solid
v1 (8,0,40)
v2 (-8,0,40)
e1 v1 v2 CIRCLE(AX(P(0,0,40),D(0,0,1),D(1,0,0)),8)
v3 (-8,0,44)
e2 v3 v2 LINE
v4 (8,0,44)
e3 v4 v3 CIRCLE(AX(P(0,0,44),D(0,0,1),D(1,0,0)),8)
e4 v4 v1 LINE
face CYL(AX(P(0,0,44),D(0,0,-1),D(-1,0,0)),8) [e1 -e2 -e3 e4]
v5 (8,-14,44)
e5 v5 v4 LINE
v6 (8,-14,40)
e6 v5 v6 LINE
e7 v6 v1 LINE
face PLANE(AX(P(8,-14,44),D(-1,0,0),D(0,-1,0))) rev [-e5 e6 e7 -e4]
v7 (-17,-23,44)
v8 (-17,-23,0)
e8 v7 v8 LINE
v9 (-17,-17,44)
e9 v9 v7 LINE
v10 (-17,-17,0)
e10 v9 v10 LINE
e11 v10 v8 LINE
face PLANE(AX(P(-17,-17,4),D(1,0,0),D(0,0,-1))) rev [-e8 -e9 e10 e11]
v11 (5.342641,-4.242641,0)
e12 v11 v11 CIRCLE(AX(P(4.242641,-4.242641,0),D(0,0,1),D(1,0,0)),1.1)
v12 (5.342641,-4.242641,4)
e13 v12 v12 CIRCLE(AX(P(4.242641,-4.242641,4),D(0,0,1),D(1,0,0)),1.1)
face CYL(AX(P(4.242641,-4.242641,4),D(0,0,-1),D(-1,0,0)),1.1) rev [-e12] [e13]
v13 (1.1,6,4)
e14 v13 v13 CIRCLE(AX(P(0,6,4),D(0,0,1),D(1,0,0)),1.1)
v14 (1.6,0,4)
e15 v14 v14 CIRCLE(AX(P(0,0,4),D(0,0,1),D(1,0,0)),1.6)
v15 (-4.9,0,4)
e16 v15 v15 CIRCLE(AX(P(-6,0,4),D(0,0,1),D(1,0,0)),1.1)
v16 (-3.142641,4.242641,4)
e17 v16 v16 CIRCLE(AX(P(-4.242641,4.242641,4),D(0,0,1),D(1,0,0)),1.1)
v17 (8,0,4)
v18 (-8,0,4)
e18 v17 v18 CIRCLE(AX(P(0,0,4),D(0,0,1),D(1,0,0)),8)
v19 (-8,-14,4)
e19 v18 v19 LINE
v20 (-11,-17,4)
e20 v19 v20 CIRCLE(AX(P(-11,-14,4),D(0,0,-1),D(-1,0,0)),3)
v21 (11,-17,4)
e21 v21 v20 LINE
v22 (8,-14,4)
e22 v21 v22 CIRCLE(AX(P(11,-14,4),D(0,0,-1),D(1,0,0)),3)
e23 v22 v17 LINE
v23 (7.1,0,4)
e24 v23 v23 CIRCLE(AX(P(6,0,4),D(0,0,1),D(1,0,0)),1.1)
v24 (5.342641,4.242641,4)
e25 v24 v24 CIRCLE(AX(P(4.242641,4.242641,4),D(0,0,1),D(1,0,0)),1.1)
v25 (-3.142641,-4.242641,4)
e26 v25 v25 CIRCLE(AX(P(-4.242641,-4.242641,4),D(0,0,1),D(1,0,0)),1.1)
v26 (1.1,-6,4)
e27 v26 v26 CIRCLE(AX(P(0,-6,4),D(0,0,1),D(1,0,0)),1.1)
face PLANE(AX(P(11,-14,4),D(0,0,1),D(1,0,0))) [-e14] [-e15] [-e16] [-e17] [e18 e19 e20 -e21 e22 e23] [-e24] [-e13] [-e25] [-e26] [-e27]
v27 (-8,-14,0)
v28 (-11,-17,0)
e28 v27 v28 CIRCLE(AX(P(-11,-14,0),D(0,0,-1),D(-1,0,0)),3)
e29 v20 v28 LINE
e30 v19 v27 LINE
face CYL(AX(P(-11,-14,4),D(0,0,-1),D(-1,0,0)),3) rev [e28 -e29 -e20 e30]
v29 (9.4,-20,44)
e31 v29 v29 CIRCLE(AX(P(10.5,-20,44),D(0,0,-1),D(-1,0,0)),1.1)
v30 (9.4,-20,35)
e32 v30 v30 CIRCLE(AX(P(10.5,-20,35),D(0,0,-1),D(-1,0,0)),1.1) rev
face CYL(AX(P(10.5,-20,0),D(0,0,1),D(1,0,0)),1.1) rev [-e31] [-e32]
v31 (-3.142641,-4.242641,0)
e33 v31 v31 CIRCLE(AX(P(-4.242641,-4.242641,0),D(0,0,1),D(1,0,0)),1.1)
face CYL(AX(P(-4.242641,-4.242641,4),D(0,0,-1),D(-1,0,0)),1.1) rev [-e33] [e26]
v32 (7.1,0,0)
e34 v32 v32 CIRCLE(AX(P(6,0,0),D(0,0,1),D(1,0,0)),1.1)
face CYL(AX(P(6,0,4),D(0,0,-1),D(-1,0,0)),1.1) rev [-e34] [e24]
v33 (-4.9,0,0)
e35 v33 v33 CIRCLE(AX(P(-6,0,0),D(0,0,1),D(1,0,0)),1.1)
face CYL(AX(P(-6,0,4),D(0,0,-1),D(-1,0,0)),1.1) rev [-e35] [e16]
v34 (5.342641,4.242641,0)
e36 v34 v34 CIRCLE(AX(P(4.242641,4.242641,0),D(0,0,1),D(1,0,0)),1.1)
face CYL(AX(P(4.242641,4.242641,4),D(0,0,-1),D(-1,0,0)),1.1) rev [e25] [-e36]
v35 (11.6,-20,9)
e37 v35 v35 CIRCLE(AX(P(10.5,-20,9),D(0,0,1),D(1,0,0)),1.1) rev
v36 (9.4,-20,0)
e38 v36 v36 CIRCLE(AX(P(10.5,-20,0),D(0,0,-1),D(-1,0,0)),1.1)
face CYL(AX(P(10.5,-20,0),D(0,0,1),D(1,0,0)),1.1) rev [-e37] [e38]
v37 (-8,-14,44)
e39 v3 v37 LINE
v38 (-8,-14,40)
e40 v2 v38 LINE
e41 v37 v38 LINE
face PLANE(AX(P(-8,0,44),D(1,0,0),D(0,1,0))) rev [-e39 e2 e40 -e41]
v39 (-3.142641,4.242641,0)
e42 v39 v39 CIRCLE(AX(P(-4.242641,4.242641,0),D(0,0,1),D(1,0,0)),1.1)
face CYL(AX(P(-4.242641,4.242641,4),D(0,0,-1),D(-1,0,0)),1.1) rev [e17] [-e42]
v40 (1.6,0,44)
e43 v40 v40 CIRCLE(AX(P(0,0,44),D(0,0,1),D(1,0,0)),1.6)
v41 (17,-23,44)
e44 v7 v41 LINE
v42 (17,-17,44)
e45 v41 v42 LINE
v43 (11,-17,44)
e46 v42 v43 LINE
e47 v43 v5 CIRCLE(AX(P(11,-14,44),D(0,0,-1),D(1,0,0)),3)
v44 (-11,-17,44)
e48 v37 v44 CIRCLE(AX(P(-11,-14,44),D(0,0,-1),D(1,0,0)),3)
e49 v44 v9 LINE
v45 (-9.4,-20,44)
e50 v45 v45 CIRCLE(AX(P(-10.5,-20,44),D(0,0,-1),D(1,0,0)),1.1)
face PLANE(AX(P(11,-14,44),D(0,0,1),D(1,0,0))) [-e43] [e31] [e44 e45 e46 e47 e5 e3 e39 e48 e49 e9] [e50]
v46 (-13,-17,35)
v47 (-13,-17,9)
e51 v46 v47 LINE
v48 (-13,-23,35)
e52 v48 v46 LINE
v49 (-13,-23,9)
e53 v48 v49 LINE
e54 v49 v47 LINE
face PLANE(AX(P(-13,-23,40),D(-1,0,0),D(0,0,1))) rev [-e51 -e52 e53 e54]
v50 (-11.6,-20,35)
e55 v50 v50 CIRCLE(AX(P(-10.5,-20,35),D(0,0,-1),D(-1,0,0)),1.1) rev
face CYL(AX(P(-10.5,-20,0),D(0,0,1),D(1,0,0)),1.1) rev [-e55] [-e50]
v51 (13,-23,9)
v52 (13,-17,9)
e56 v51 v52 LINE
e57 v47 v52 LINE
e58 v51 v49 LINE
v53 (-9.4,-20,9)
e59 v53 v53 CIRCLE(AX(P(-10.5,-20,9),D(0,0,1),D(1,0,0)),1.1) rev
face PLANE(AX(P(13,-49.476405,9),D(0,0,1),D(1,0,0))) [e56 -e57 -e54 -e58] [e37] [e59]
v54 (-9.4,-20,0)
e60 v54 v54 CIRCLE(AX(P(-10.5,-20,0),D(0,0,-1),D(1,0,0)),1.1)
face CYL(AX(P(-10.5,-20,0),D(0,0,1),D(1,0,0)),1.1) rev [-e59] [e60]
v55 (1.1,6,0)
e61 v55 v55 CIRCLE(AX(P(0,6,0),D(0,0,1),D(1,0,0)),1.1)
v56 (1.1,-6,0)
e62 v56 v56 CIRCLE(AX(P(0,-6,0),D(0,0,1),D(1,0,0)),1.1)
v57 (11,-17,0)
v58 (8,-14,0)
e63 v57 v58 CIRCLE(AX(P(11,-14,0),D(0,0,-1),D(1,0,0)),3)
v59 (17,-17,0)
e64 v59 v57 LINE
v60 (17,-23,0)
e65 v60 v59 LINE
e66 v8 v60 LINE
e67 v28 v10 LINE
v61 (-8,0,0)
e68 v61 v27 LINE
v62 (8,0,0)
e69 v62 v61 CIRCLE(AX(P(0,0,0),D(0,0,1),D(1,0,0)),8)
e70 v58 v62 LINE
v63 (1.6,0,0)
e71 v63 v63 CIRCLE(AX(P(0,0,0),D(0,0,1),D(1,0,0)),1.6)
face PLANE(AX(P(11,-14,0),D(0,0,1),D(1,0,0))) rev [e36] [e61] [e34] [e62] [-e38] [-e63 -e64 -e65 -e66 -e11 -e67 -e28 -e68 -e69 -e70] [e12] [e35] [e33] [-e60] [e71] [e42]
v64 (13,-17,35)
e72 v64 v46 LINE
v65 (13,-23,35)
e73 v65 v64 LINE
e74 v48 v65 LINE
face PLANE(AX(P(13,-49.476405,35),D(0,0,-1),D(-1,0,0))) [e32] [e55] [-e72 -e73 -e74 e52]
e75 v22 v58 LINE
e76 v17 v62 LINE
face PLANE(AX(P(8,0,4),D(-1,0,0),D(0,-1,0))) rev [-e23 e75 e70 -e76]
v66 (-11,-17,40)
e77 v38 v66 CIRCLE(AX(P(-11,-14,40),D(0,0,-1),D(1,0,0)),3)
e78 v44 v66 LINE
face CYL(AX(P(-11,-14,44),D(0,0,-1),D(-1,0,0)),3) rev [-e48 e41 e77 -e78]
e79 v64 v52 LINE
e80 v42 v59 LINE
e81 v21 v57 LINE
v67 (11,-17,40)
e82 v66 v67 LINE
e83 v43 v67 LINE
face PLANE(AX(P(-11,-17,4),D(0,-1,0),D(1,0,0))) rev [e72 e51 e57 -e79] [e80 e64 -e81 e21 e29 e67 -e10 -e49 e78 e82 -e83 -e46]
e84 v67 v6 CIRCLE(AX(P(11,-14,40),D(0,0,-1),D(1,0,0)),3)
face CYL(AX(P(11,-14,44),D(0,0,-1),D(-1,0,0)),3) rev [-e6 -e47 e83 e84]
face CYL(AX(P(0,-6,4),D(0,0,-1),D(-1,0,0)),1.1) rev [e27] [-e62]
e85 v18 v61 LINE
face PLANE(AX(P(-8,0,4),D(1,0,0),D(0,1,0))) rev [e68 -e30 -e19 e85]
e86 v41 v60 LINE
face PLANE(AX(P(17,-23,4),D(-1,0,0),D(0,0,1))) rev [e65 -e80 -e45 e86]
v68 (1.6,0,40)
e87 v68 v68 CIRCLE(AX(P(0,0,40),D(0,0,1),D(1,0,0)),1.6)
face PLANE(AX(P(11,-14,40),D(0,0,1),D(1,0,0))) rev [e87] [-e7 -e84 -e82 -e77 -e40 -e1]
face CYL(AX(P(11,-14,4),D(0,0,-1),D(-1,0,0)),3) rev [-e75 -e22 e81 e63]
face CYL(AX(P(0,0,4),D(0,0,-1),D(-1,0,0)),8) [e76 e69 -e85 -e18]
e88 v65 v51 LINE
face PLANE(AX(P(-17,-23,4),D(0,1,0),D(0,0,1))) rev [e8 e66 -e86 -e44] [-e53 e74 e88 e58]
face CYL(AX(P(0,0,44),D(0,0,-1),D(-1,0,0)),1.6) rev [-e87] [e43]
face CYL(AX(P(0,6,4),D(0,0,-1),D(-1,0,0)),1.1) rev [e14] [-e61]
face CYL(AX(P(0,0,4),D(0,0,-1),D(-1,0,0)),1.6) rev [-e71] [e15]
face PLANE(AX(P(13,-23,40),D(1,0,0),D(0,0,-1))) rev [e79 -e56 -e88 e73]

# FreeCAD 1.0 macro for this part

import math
import FreeCAD as App
import Part
import Sketcher
from FreeCAD import Vector

doc = App.newDocument("Part")
body = doc.addObject("PartDesign::Body", "Body")

# Sketch on XY plane
sketch1 = body.newObject("Sketcher::SketchObject", "Sketch")
sketch1.AttachmentSupport = (doc.getObject("XY_Plane"), [""])
sketch1.MapMode = "FlatFace"
sketch1.addGeometry([
    Part.LineSegment(Vector(-17, -17, 0), Vector(-17, -23, 0)),  # 0
    Part.LineSegment(Vector(-17, -23, 0), Vector(17, -23, 0)),  # 1
    Part.LineSegment(Vector(17, -23, 0), Vector(17, -17, 0)),  # 2
    Part.LineSegment(Vector(17, -17, 0), Vector(11, -17, 0)),  # 3
    Part.ArcOfCircle(Part.Circle(Vector(11, -14, 0), Vector(0, 0, 1), 3), math.radians(180), math.radians(270)),  # 4
    Part.LineSegment(Vector(8, -14, 0), Vector(8, 0, 0)),  # 5
    Part.ArcOfCircle(Part.Circle(Vector(0, 0, 0), Vector(0, 0, 1), 8), math.radians(0), math.radians(180)),  # 6
    Part.LineSegment(Vector(-8, 0, 0), Vector(-8, -14, 0)),  # 7
    Part.ArcOfCircle(Part.Circle(Vector(-11, -14, 0), Vector(0, 0, 1), 3), math.radians(-90), math.radians(0)),  # 8
    Part.LineSegment(Vector(-11, -17, 0), Vector(-17, -17, 0)),  # 9
    Part.Circle(Vector(-4.2, -4.2, 0), Vector(0, 0, 1), 1.1),  # 10
    Part.Circle(Vector(-6, 0, 0), Vector(0, 0, 1), 1.1),  # 11
    Part.Circle(Vector(0, -6, 0), Vector(0, 0, 1), 1.1),  # 12
    Part.Circle(Vector(4.2, -4.2, 0), Vector(0, 0, 1), 1.1),  # 13
    Part.Circle(Vector(0, 0, 0), Vector(0, 0, 1), 1.6),  # 14
    Part.Circle(Vector(6, 0, 0), Vector(0, 0, 1), 1.1),  # 15
    Part.Circle(Vector(-4.2, 4.2, 0), Vector(0, 0, 1), 1.1),  # 16
    Part.Circle(Vector(0, 6, 0), Vector(0, 0, 1), 1.1),  # 17
    Part.Circle(Vector(4.2, 4.2, 0), Vector(0, 0, 1), 1.1),  # 18
], False)
sketch1.addConstraint([
    Sketcher.Constraint("Coincident", 0, 2, 1, 1),
    Sketcher.Constraint("Coincident", 1, 2, 2, 1),
    Sketcher.Constraint("Coincident", 2, 2, 3, 1),
    Sketcher.Constraint("Tangent", 3, 2, 4, 2),
    Sketcher.Constraint("Tangent", 4, 1, 5, 1),
    Sketcher.Constraint("Tangent", 5, 2, 6, 1),
    Sketcher.Constraint("Tangent", 6, 2, 7, 1),
    Sketcher.Constraint("Tangent", 7, 2, 8, 2),
    Sketcher.Constraint("Tangent", 8, 1, 9, 1),
    Sketcher.Constraint("Coincident", 9, 2, 0, 1),
    Sketcher.Constraint("Vertical", 0),
    Sketcher.Constraint("Horizontal", 1),
    Sketcher.Constraint("Vertical", 2),
    Sketcher.Constraint("Horizontal", 3),
    Sketcher.Constraint("Vertical", 5),
    Sketcher.Constraint("Vertical", 7),
    Sketcher.Constraint("Horizontal", 9),
    Sketcher.Constraint("Coincident", 6, 3, -1, 1),
    Sketcher.Constraint("Coincident", 14, 3, -1, 1),
    Sketcher.Constraint("Equal", 4, 8),
    Sketcher.Constraint("Equal", 10, 11),
    Sketcher.Constraint("Equal", 11, 12),
    Sketcher.Constraint("Equal", 12, 13),
    Sketcher.Constraint("Equal", 13, 15),
    Sketcher.Constraint("Equal", 15, 16),
    Sketcher.Constraint("Equal", 16, 17),
    Sketcher.Constraint("Equal", 17, 18),
    Sketcher.Constraint("Symmetric", 11, 3, 15, 3, -1, 1),
    Sketcher.Constraint("Symmetric", 13, 3, 16, 3, -1, 1),
    Sketcher.Constraint("Symmetric", 12, 3, 17, 3, -1, 1),
    Sketcher.Constraint("Symmetric", 10, 3, 18, 3, -1, 1),
    Sketcher.Constraint("Symmetric", 10, 3, 13, 3, -2),
    Sketcher.Constraint("Symmetric", 2, 2, 9, 2, -2),
    Sketcher.Constraint("PointOnObject", 11, 3, -1),
    Sketcher.Constraint("PointOnObject", 12, 3, -2),
    Sketcher.Constraint("Equal", 9, 0),
    Sketcher.Constraint("Radius", 4, 3.0),
    Sketcher.Constraint("Radius", 6, 8.0),
    Sketcher.Constraint("Diameter", 10, 2.2),
    Sketcher.Constraint("Diameter", 14, 3.2),
    Sketcher.Constraint("DistanceX", 1, 1, 1, 2, 34.0),
    Sketcher.Constraint("DistanceY", 5, 1, 5, 2, 14.0),
    Sketcher.Constraint("DistanceX", 11, 3, -1, 1, 6.0),
    Sketcher.Constraint("DistanceY", 12, 3, -1, 1, 6.0),
    Sketcher.Constraint("DistanceX", 10, 3, -1, 1, 4.242641),
    Sketcher.Constraint("DistanceY", 10, 3, -1, 1, 4.242641),
])
pad1 = body.newObject("PartDesign::Pad", "Pad")
pad1.Profile = sketch1
pad1.Length = 4

# Sketch on XY plane
sketch2 = body.newObject("Sketcher::SketchObject", "Sketch001")
sketch2.AttachmentSupport = (doc.getObject("XY_Plane"), [""])
sketch2.MapMode = "FlatFace"
sketch2.AttachmentOffset = App.Placement(Vector(0, 0, 4), App.Rotation())
sketch2.addGeometry([
    Part.LineSegment(Vector(-17, -17, 0), Vector(-17, -23, 0)),  # 0
    Part.LineSegment(Vector(-17, -23, 0), Vector(-13, -23, 0)),  # 1
    Part.LineSegment(Vector(-13, -23, 0), Vector(-13, -17, 0)),  # 2
    Part.LineSegment(Vector(-13, -17, 0), Vector(-17, -17, 0)),  # 3
    Part.LineSegment(Vector(13, -17, 0), Vector(13, -23, 0)),  # 4
    Part.LineSegment(Vector(13, -23, 0), Vector(17, -23, 0)),  # 5
    Part.LineSegment(Vector(17, -23, 0), Vector(17, -17, 0)),  # 6
    Part.LineSegment(Vector(17, -17, 0), Vector(13, -17, 0)),  # 7
], False)
sketch2.addConstraint([
    Sketcher.Constraint("Coincident", 0, 2, 1, 1),
    Sketcher.Constraint("Coincident", 1, 2, 2, 1),
    Sketcher.Constraint("Coincident", 2, 2, 3, 1),
    Sketcher.Constraint("Coincident", 3, 2, 0, 1),
    Sketcher.Constraint("Coincident", 4, 2, 5, 1),
    Sketcher.Constraint("Coincident", 5, 2, 6, 1),
    Sketcher.Constraint("Coincident", 6, 2, 7, 1),
    Sketcher.Constraint("Coincident", 7, 2, 4, 1),
    Sketcher.Constraint("Vertical", 0),
    Sketcher.Constraint("Horizontal", 1),
    Sketcher.Constraint("Vertical", 2),
    Sketcher.Constraint("Horizontal", 3),
    Sketcher.Constraint("Vertical", 4),
    Sketcher.Constraint("Horizontal", 5),
    Sketcher.Constraint("Vertical", 6),
    Sketcher.Constraint("Horizontal", 7),
    Sketcher.Constraint("Symmetric", 1, 2, 4, 2, -2),
    Sketcher.Constraint("Symmetric", 3, 2, 6, 2, -2),
    Sketcher.Constraint("DistanceX", 1, 1, 1, 2, 4.0),
    Sketcher.Constraint("DistanceY", 0, 2, 0, 1, 6.0),
    Sketcher.Constraint("DistanceX", 0, 2, -1, 1, 17.0),
    Sketcher.Constraint("DistanceY", 0, 2, -1, 1, 23.0),
])
pad2 = body.newObject("PartDesign::Pad", "Pad001")
pad2.Profile = sketch2
pad2.Length = 36

# Sketch on XY plane
sketch3 = body.newObject("Sketcher::SketchObject", "Sketch002")
sketch3.AttachmentSupport = (doc.getObject("XY_Plane"), [""])
sketch3.MapMode = "FlatFace"
sketch3.AttachmentOffset = App.Placement(Vector(0, 0, 40), App.Rotation())
sketch3.addGeometry([
    Part.LineSegment(Vector(-11, -17, 0), Vector(-17, -17, 0)),  # 0
    Part.LineSegment(Vector(-17, -17, 0), Vector(-17, -23, 0)),  # 1
    Part.LineSegment(Vector(-17, -23, 0), Vector(17, -23, 0)),  # 2
    Part.LineSegment(Vector(17, -23, 0), Vector(17, -17, 0)),  # 3
    Part.LineSegment(Vector(17, -17, 0), Vector(11, -17, 0)),  # 4
    Part.ArcOfCircle(Part.Circle(Vector(11, -14, 0), Vector(0, 0, 1), 3), math.radians(180), math.radians(270)),  # 5
    Part.LineSegment(Vector(8, -14, 0), Vector(8, 0, 0)),  # 6
    Part.ArcOfCircle(Part.Circle(Vector(0, 0, 0), Vector(0, 0, 1), 8), math.radians(0), math.radians(180)),  # 7
    Part.LineSegment(Vector(-8, 0, 0), Vector(-8, -14, 0)),  # 8
    Part.ArcOfCircle(Part.Circle(Vector(-11, -14, 0), Vector(0, 0, 1), 3), math.radians(-90), math.radians(0)),  # 9
    Part.Circle(Vector(0, 0, 0), Vector(0, 0, 1), 1.6),  # 10
], False)
sketch3.addConstraint([
    Sketcher.Constraint("Coincident", 0, 2, 1, 1),
    Sketcher.Constraint("Coincident", 1, 2, 2, 1),
    Sketcher.Constraint("Coincident", 2, 2, 3, 1),
    Sketcher.Constraint("Coincident", 3, 2, 4, 1),
    Sketcher.Constraint("Tangent", 4, 2, 5, 2),
    Sketcher.Constraint("Tangent", 5, 1, 6, 1),
    Sketcher.Constraint("Tangent", 6, 2, 7, 1),
    Sketcher.Constraint("Tangent", 7, 2, 8, 1),
    Sketcher.Constraint("Tangent", 8, 2, 9, 2),
    Sketcher.Constraint("Tangent", 9, 1, 0, 1),
    Sketcher.Constraint("Horizontal", 0),
    Sketcher.Constraint("Vertical", 1),
    Sketcher.Constraint("Horizontal", 2),
    Sketcher.Constraint("Vertical", 3),
    Sketcher.Constraint("Horizontal", 4),
    Sketcher.Constraint("Vertical", 6),
    Sketcher.Constraint("Vertical", 8),
    Sketcher.Constraint("Coincident", 7, 3, -1, 1),
    Sketcher.Constraint("Coincident", 10, 3, -1, 1),
    Sketcher.Constraint("Equal", 5, 9),
    Sketcher.Constraint("Symmetric", 0, 2, 3, 2, -2),
    Sketcher.Constraint("Equal", 4, 1),
    Sketcher.Constraint("Radius", 5, 3.0),
    Sketcher.Constraint("Radius", 7, 8.0),
    Sketcher.Constraint("Diameter", 10, 3.2),
    Sketcher.Constraint("DistanceX", 0, 2, 0, 1, 6.0),
    Sketcher.Constraint("DistanceY", 6, 1, 6, 2, 14.0),
])
pad3 = body.newObject("PartDesign::Pad", "Pad002")
pad3.Profile = sketch3
pad3.Length = 4

# Sketch on XZ plane
sketch4 = body.newObject("Sketcher::SketchObject", "Sketch003")
sketch4.AttachmentSupport = (doc.getObject("XZ_Plane"), [""])
sketch4.MapMode = "FlatFace"
sketch4.AttachmentOffset = App.Placement(Vector(0, 0, 17), App.Rotation())
sketch4.addGeometry([
    Part.LineSegment(Vector(-13, 4, 0), Vector(-13, 9, 0)),  # 0
    Part.LineSegment(Vector(-13, 9, 0), Vector(13, 9, 0)),  # 1
    Part.LineSegment(Vector(13, 9, 0), Vector(13, 4, 0)),  # 2
    Part.LineSegment(Vector(13, 4, 0), Vector(-13, 4, 0)),  # 3
    Part.LineSegment(Vector(-13, 35, 0), Vector(-13, 40, 0)),  # 4
    Part.LineSegment(Vector(-13, 40, 0), Vector(13, 40, 0)),  # 5
    Part.LineSegment(Vector(13, 40, 0), Vector(13, 35, 0)),  # 6
    Part.LineSegment(Vector(13, 35, 0), Vector(-13, 35, 0)),  # 7
], False)
sketch4.addConstraint([
    Sketcher.Constraint("Coincident", 0, 2, 1, 1),
    Sketcher.Constraint("Coincident", 1, 2, 2, 1),
    Sketcher.Constraint("Coincident", 2, 2, 3, 1),
    Sketcher.Constraint("Coincident", 3, 2, 0, 1),
    Sketcher.Constraint("Coincident", 4, 2, 5, 1),
    Sketcher.Constraint("Coincident", 5, 2, 6, 1),
    Sketcher.Constraint("Coincident", 6, 2, 7, 1),
    Sketcher.Constraint("Coincident", 7, 2, 4, 1),
    Sketcher.Constraint("Vertical", 0),
    Sketcher.Constraint("Horizontal", 1),
    Sketcher.Constraint("Vertical", 2),
    Sketcher.Constraint("Horizontal", 3),
    Sketcher.Constraint("Vertical", 4),
    Sketcher.Constraint("Horizontal", 5),
    Sketcher.Constraint("Vertical", 6),
    Sketcher.Constraint("Horizontal", 7),
    Sketcher.Constraint("Vertical", 3, 2, 4, 2),
    Sketcher.Constraint("Vertical", 2, 2, 5, 2),
    Sketcher.Constraint("Equal", 2, 4),
    Sketcher.Constraint("DistanceX", 1, 1, 1, 2, 26.0),
    Sketcher.Constraint("DistanceY", 0, 1, 0, 2, 5.0),
    Sketcher.Constraint("DistanceX", 0, 2, -1, 1, 13.0),
    Sketcher.Constraint("DistanceY", -1, 1, 0, 2, 9.0),
    Sketcher.Constraint("DistanceY", -1, 1, 4, 2, 40.0),
])
pad4 = body.newObject("PartDesign::Pad", "Pad003")
pad4.Profile = sketch4
pad4.Length = 6

# Sketch on XY plane
sketch5 = body.newObject("Sketcher::SketchObject", "Sketch004")
sketch5.AttachmentSupport = (doc.getObject("XY_Plane"), [""])
sketch5.MapMode = "FlatFace"
sketch5.AttachmentOffset = App.Placement(Vector(0, 0, 44), App.Rotation())
sketch5.addGeometry([
    Part.Circle(Vector(10.5, -20, 0), Vector(0, 0, 1), 1.1),
    Part.Circle(Vector(-10.5, -20, 0), Vector(0, 0, 1), 1.1),
], False)
sketch5.addConstraint([
    Sketcher.Constraint("Equal", 0, 1),
    Sketcher.Constraint("Symmetric", 0, 3, 1, 3, -2),
    Sketcher.Constraint("Diameter", 0, 2.2),
    Sketcher.Constraint("DistanceY", 0, 3, -1, 1, 20.0),
    Sketcher.Constraint("DistanceX", 1, 3, 0, 3, 21.0),
])
pocket1 = body.newObject("PartDesign::Pocket", "Pocket")
pocket1.Profile = sketch5
pocket1.Type = "ThroughAll"

doc.recompute()
